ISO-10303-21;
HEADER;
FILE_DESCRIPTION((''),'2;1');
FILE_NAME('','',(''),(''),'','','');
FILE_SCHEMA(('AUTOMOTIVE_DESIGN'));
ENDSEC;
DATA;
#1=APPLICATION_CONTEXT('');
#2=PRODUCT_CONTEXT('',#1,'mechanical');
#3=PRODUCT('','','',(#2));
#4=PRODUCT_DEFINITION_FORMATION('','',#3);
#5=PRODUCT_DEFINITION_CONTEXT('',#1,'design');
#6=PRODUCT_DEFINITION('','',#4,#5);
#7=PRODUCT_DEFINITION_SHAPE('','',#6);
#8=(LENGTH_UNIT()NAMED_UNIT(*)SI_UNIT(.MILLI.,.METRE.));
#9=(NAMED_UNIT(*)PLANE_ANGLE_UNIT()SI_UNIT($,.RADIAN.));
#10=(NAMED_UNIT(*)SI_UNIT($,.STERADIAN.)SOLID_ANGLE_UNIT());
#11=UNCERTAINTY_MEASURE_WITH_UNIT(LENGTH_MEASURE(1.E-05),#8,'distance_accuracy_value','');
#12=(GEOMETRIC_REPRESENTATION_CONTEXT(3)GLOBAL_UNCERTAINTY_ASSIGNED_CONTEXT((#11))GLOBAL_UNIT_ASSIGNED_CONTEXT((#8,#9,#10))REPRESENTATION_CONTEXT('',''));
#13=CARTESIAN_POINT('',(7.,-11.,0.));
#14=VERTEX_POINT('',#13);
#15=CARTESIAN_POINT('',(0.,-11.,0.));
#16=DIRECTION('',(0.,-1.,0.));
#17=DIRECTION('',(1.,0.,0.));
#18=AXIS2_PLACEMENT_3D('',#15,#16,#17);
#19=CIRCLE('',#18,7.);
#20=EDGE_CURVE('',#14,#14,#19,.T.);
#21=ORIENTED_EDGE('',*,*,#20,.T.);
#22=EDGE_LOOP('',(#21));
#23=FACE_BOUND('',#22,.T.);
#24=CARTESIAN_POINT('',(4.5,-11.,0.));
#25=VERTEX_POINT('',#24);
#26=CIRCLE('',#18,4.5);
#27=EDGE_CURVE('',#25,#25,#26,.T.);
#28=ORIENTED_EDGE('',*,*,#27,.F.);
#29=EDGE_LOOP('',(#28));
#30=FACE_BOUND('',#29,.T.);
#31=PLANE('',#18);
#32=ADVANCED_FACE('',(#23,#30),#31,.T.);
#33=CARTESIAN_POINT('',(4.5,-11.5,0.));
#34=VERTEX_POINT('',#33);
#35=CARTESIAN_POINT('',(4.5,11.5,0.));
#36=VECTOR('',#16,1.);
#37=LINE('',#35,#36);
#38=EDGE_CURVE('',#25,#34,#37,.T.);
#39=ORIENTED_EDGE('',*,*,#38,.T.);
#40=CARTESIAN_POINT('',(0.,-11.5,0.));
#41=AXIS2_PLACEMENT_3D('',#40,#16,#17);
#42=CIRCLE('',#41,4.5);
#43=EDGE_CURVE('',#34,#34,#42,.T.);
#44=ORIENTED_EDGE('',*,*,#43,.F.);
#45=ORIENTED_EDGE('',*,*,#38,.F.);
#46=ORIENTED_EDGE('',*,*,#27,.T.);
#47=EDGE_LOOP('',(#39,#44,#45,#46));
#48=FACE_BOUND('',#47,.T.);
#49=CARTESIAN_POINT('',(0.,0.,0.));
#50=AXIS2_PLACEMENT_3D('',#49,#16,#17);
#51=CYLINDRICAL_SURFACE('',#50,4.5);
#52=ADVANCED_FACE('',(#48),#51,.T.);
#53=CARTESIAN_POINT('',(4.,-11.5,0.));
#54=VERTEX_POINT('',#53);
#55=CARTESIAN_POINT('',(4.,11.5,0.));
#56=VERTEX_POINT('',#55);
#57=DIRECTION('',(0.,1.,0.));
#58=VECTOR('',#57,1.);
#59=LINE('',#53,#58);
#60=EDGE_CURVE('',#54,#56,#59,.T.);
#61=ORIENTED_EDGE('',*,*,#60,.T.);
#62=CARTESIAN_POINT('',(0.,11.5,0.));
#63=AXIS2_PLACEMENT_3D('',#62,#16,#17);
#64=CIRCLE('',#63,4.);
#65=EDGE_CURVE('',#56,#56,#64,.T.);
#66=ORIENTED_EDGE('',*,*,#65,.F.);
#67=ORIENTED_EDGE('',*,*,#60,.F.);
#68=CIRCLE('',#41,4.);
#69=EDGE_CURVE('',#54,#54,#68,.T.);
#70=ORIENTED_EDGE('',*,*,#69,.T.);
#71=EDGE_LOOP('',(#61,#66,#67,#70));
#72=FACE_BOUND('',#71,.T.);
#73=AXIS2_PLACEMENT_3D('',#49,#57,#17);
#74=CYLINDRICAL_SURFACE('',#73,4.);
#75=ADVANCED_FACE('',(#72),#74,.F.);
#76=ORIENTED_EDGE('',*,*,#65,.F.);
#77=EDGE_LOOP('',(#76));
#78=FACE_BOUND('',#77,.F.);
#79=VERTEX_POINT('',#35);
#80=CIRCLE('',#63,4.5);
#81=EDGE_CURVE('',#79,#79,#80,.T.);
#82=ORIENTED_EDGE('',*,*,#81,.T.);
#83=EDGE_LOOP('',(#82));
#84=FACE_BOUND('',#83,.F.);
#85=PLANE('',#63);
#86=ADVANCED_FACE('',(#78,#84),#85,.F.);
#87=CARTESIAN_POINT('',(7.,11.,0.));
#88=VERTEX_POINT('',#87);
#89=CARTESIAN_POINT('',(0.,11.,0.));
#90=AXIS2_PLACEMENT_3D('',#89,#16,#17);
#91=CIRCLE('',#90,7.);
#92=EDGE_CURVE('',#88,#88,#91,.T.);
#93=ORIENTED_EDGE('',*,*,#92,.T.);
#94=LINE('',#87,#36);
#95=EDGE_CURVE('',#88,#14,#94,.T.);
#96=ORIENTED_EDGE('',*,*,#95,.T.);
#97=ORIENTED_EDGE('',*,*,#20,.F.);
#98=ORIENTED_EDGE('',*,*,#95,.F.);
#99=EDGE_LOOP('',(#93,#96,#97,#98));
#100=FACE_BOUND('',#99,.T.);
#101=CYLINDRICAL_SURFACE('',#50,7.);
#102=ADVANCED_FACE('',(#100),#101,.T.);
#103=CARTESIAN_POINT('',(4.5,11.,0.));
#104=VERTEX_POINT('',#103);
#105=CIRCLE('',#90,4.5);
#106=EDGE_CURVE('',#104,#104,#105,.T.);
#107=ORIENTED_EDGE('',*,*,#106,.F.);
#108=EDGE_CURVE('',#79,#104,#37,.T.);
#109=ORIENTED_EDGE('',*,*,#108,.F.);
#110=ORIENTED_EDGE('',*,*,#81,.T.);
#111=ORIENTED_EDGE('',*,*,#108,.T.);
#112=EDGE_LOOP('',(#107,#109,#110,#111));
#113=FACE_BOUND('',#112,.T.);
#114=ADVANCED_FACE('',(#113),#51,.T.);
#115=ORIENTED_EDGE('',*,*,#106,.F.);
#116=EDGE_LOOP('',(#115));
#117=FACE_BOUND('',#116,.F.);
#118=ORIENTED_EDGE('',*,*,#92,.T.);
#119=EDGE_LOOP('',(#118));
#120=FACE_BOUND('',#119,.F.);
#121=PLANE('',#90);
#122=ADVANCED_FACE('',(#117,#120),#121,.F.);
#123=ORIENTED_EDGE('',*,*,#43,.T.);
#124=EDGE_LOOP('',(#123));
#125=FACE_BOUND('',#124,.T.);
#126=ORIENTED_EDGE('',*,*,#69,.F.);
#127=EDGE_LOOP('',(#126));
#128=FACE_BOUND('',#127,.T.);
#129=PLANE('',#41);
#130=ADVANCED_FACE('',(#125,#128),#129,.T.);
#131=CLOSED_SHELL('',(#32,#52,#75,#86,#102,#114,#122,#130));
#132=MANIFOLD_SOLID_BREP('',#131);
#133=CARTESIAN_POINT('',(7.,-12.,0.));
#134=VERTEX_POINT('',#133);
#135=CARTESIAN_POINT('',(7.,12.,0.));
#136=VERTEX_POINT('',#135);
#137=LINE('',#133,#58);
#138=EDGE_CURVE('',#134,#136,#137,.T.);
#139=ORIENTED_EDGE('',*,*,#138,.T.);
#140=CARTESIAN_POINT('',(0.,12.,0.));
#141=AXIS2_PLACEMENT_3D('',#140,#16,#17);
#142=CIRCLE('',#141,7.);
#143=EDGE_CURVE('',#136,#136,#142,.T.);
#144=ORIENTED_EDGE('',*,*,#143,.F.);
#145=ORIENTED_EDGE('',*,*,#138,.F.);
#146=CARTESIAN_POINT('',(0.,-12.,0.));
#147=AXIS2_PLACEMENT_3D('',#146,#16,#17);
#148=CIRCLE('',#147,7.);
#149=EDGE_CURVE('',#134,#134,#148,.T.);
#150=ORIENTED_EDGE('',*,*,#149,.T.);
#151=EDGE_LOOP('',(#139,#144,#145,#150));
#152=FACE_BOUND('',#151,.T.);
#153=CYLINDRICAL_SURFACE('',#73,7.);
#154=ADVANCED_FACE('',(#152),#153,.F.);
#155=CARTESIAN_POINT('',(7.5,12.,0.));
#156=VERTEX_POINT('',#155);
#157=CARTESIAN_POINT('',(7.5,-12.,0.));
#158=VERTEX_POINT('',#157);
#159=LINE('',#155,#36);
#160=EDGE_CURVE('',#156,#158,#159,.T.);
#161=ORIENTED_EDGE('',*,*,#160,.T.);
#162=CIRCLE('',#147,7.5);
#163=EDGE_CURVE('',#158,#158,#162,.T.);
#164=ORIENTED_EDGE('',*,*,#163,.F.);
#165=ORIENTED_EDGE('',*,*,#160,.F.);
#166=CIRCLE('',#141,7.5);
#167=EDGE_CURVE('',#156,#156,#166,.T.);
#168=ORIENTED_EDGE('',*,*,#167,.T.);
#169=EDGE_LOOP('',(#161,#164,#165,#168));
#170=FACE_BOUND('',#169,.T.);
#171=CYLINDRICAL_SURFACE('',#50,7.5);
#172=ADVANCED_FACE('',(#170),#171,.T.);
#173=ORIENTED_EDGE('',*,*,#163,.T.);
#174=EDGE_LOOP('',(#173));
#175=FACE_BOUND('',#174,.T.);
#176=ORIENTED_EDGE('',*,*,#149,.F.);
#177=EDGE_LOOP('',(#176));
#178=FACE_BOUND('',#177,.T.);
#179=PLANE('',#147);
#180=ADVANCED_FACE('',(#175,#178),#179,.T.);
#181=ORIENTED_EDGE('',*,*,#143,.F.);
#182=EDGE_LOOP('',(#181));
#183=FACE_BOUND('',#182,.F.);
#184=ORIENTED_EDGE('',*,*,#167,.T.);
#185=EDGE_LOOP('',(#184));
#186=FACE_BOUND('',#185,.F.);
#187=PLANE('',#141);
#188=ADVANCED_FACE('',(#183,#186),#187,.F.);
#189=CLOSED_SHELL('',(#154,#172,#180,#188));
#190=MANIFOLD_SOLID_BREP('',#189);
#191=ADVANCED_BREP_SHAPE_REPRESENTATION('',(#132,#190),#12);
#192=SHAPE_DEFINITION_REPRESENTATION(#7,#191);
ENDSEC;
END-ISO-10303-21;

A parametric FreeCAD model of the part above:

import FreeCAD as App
import Part
import Sketcher

doc = App.newDocument("Part")
body = doc.addObject("PartDesign::Body", "Body")

# Sketch on XZ plane
sketch1 = body.newObject("Sketcher::SketchObject", "Sketch")
sketch1.AttachmentSupport = (doc.getObject("XZ_Plane"), [""])
sketch1.MapMode = "FlatFace"
sketch1.addGeometry([
    Part.Circle(App.Vector(0, 0, 0), App.Vector(0, 0, 1), 8),
    Part.Circle(App.Vector(0, 0, 0), App.Vector(0, 0, 1), 7),
], False)
sketch1.addConstraint([
    Sketcher.Constraint("Coincident", 0, 3, -1, 1),
    Sketcher.Constraint("Coincident", 1, 3, -1, 1),
    Sketcher.Constraint("Diameter", 0, 15.0),
    Sketcher.Constraint("Diameter", 1, 14.0),
])
pad1 = body.newObject("PartDesign::Pad", "Pad")
pad1.Profile = sketch1
pad1.Length = 24
pad1.Midplane = True
body2 = doc.addObject("PartDesign::Body", "Body001")

# Sketch on XZ plane
sketch2 = body2.newObject("Sketcher::SketchObject", "Sketch001")
sketch2.AttachmentSupport = (doc.getObject("XZ_Plane001"), [""])
sketch2.MapMode = "FlatFace"
sketch2.addGeometry([
    Part.Circle(App.Vector(0, 0, 0), App.Vector(0, 0, 1), 7),
    Part.Circle(App.Vector(0, 0, 0), App.Vector(0, 0, 1), 4.5),
], False)
sketch2.addConstraint([
    Sketcher.Constraint("Coincident", 0, 3, -1, 1),
    Sketcher.Constraint("Coincident", 1, 3, -1, 1),
    Sketcher.Constraint("Diameter", 0, 14.0),
    Sketcher.Constraint("Diameter", 1, 9.0),
])
pad2 = body2.newObject("PartDesign::Pad", "Pad001")
pad2.Profile = sketch2
pad2.Length = 22
pad2.Midplane = True

# Sketch on XZ plane
sketch3 = body2.newObject("Sketcher::SketchObject", "Sketch002")
sketch3.AttachmentSupport = (doc.getObject("XZ_Plane001"), [""])
sketch3.MapMode = "FlatFace"
sketch3.addGeometry([
    Part.Circle(App.Vector(0, 0, 0), App.Vector(0, 0, 1), 4.5),
    Part.Circle(App.Vector(0, 0, 0), App.Vector(0, 0, 1), 4),
], False)
sketch3.addConstraint([
    Sketcher.Constraint("Coincident", 0, 3, -1, 1),
    Sketcher.Constraint("Coincident", 1, 3, -1, 1),
    Sketcher.Constraint("Diameter", 0, 9.0),
    Sketcher.Constraint("Diameter", 1, 8.0),
])
pad3 = body2.newObject("PartDesign::Pad", "Pad002")
pad3.Profile = sketch3
pad3.Length = 23
pad3.Midplane = True

doc.recompute()
